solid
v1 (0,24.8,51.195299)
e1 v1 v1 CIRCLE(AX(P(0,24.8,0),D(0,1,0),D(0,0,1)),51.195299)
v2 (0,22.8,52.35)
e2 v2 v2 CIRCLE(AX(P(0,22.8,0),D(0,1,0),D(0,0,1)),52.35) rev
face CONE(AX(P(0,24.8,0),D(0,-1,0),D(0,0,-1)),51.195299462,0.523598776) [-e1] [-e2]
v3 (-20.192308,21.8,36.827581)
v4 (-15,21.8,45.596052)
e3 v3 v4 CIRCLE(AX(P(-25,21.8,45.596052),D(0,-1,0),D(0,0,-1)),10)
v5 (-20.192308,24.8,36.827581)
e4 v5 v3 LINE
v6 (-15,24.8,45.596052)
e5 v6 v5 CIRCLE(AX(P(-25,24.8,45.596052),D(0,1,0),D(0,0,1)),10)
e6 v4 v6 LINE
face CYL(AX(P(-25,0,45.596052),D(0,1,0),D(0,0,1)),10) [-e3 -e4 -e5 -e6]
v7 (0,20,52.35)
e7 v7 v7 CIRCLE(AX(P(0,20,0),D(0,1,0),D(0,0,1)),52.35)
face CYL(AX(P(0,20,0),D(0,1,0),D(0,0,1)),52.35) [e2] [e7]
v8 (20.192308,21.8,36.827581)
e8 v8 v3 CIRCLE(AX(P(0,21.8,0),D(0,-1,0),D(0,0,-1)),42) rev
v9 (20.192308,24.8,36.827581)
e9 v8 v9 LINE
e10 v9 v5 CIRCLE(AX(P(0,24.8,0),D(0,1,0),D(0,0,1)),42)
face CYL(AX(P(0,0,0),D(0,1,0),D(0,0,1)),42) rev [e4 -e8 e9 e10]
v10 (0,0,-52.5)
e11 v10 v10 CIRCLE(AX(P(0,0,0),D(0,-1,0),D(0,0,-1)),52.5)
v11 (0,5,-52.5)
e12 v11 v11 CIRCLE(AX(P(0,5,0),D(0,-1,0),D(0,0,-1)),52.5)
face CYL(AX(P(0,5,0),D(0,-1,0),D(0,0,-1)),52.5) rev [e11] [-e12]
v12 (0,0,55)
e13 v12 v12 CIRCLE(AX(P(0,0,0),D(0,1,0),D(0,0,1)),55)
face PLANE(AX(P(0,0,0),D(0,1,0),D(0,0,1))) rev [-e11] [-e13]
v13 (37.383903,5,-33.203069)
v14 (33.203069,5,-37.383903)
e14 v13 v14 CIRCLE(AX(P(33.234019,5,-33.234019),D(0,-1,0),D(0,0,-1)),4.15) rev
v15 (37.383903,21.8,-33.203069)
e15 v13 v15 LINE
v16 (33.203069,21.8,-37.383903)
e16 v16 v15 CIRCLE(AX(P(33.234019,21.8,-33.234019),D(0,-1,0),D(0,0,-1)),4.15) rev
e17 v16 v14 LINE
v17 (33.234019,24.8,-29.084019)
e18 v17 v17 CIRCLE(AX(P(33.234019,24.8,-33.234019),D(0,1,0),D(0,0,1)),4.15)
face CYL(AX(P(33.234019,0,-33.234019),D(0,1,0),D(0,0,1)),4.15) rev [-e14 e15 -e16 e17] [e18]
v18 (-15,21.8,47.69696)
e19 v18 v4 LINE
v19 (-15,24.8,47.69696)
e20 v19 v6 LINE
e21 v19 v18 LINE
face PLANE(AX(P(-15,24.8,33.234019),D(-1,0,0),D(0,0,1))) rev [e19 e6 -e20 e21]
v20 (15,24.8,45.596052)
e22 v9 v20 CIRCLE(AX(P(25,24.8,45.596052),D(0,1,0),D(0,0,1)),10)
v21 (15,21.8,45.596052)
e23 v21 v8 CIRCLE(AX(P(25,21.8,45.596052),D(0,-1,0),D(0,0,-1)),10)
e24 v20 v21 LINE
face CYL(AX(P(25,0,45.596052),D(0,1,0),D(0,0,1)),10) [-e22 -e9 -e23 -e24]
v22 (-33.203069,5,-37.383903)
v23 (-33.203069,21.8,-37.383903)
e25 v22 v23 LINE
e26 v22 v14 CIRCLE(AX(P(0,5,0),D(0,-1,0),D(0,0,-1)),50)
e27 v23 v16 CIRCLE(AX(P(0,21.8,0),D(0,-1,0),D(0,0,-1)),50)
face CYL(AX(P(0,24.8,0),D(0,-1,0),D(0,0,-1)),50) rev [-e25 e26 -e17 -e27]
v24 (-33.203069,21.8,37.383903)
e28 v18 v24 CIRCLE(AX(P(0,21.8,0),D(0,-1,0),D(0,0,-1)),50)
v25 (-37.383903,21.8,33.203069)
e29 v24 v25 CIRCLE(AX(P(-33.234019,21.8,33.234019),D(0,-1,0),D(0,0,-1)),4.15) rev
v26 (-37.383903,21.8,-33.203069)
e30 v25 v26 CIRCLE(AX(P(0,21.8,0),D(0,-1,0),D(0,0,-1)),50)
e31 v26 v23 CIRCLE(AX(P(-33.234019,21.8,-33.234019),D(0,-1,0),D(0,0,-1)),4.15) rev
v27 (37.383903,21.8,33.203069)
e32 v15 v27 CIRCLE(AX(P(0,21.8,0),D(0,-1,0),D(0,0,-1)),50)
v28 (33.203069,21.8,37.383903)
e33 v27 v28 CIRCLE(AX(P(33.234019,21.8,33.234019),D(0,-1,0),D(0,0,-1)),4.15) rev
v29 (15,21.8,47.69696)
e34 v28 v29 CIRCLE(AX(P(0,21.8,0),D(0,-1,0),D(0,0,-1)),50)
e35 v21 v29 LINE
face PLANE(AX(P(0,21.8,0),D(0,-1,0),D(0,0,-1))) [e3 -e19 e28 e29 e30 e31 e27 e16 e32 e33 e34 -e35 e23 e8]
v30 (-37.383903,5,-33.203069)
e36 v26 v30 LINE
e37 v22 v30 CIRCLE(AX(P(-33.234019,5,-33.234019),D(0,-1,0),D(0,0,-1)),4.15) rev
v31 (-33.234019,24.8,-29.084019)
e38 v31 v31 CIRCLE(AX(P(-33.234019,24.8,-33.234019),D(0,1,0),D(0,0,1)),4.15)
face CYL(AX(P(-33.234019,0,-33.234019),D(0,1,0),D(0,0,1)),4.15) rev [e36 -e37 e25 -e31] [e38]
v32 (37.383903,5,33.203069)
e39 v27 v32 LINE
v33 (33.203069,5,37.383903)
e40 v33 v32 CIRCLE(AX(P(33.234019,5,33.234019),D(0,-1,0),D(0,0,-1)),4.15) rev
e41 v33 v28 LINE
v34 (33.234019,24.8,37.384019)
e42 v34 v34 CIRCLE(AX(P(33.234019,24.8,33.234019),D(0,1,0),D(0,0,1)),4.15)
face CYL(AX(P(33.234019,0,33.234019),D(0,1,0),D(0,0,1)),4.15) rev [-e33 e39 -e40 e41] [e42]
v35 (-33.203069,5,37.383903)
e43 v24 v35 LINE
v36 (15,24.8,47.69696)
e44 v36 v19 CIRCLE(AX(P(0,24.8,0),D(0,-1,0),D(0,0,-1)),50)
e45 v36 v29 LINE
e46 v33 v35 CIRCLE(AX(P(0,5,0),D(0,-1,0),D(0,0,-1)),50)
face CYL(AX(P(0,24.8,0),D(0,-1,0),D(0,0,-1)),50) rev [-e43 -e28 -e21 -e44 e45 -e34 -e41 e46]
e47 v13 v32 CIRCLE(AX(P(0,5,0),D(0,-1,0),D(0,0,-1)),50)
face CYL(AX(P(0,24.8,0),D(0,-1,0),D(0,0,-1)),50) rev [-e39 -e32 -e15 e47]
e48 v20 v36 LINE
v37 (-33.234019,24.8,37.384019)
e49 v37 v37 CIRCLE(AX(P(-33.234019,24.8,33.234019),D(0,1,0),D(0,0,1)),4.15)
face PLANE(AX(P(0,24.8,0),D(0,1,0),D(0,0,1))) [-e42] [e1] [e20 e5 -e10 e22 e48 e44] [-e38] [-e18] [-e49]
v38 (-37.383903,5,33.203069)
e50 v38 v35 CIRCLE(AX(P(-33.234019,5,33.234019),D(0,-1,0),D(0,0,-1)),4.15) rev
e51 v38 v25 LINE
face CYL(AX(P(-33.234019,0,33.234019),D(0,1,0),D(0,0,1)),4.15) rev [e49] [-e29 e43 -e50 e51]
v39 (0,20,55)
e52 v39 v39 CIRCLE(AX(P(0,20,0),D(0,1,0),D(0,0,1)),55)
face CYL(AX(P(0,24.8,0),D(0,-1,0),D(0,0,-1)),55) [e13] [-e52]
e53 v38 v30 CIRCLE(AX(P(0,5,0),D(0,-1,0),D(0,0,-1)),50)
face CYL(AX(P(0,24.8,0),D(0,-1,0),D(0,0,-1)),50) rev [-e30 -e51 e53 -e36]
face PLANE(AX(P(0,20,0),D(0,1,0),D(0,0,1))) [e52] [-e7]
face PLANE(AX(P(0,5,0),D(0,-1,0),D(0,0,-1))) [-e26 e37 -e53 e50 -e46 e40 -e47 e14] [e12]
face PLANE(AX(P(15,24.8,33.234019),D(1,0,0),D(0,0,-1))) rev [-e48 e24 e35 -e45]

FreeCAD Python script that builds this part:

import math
import FreeCAD as App
import Part
import Sketcher
from FreeCAD import Vector


def edges_at(feature, points):
    """Names of the edges that pass closest to the given points."""
    edges = feature.Shape.Edges
    near = lambda p: min(range(len(edges)), key=lambda i: edges[i].distToShape(Part.Vertex(*p))[0])
    return sorted({f"Edge{near(p) + 1}" for p in points})


def faces_at(feature, points):
    """Names of the faces that lie closest to the given points."""
    faces = feature.Shape.Faces
    near = lambda p: min(range(len(faces)), key=lambda i: faces[i].distToShape(Part.Vertex(*p))[0])
    return sorted({f"Face{near(p) + 1}" for p in points})

doc = App.newDocument("Part")
body = doc.addObject("PartDesign::Body", "Body")

# Sketch on XZ plane
sketch1 = doc.addObject("Sketcher::SketchObject", "Sketch")
body.addObject(sketch1)
sketch1.AttachmentSupport = (doc.XZ_Plane, [""])
sketch1.MapMode = "FlatFace"
sketch1.addGeometry(Part.Circle(Vector(0, 0, 0), Vector(0, 0, 1), 55), False)
sketch1.addConstraint(Sketcher.Constraint("Coincident", 0, 3, -1, 1))
sketch1.addConstraint(Sketcher.Constraint("Diameter", 0, 110.0))
pad1 = doc.addObject("PartDesign::Pad", "Pad")
body.addObject(pad1)
pad1.Profile = sketch1
pad1.Length = 24.8
pad1.Reversed = True
doc.recompute()

thickness = doc.addObject("PartDesign::Thickness", "Thickness")
body.addObject(thickness)
thickness.Base = (pad1, faces_at(pad1, [(0, 0, 0)]))
thickness.Value = 5
thickness.Reversed = True
thickness.Join = "Intersection"

# Sketch on XZ plane
sketch2 = doc.addObject("Sketcher::SketchObject", "Sketch001")
body.addObject(sketch2)
sketch2.AttachmentSupport = (doc.XZ_Plane, [""])
sketch2.MapMode = "FlatFace"
sketch2.AttachmentOffset = App.Placement(Vector(0, 0, -19.8), App.Rotation())
sketch2.addGeometry(Part.Circle(Vector(0, 0, 0), Vector(0, 0, 1), 35), False)
sketch2.addConstraint(Sketcher.Constraint("Coincident", 0, 3, -1, 1))
sketch2.addConstraint(Sketcher.Constraint("Diameter", 0, 70.0))
pocket1 = doc.addObject("PartDesign::Pocket", "Pocket")
body.addObject(pocket1)
pocket1.Profile = sketch2
pocket1.Type = "ThroughAll"

# Sketch on XZ plane
sketch3 = doc.addObject("Sketcher::SketchObject", "Sketch002")
body.addObject(sketch3)
sketch3.AttachmentSupport = (doc.XZ_Plane, [""])
sketch3.MapMode = "FlatFace"
sketch3.AttachmentOffset = App.Placement(Vector(0, 0, -24.8), App.Rotation())
sketch3.addGeometry(Part.Circle(Vector(0, 0, 0), Vector(0, 0, 1), 42), False)
sketch3.addConstraint(Sketcher.Constraint("Coincident", 0, 3, -1, 1))
sketch3.addConstraint(Sketcher.Constraint("Diameter", 0, 84.0))
pocket2 = doc.addObject("PartDesign::Pocket", "Pocket001")
body.addObject(pocket2)
pocket2.Profile = sketch3
pocket2.Type = "ThroughAll"
pocket2.Reversed = True

# Sketch on XZ plane
sketch4 = doc.addObject("Sketcher::SketchObject", "Sketch003")
body.addObject(sketch4)
sketch4.AttachmentSupport = (doc.XZ_Plane, [""])
sketch4.MapMode = "FlatFace"
sketch4.AttachmentOffset = App.Placement(Vector(0, 0, -24.8), App.Rotation())
sketch4.addGeometry(Part.Circle(Vector(-33.2, 33.2, 0), Vector(0, 0, 1), 4.2), False)
sketch4.addGeometry(Part.Circle(Vector(-33.2, -33.2, 0), Vector(0, 0, 1), 4.2), False)
sketch4.addGeometry(Part.Circle(Vector(33.2, -33.2, 0), Vector(0, 0, 1), 4.2), False)
sketch4.addGeometry(Part.Circle(Vector(33.2, 33.2, 0), Vector(0, 0, 1), 4.2), False)
sketch4.addConstraint(Sketcher.Constraint("Equal", 0, 1))
sketch4.addConstraint(Sketcher.Constraint("Equal", 1, 2))
sketch4.addConstraint(Sketcher.Constraint("Equal", 2, 3))
sketch4.addConstraint(Sketcher.Constraint("Symmetric", 0, 3, 2, 3, -1, 1))
sketch4.addConstraint(Sketcher.Constraint("Symmetric", 1, 3, 3, 3, -1, 1))
sketch4.addConstraint(Sketcher.Constraint("Symmetric", 1, 3, 2, 3, -2))
sketch4.addConstraint(Sketcher.Constraint("Diameter", 0, 8.3))
sketch4.addConstraint(Sketcher.Constraint("DistanceX", 0, 3, -1, 1, 33.234019))
sketch4.addConstraint(Sketcher.Constraint("DistanceY", -1, 1, 0, 3, 33.234019))
pocket3 = doc.addObject("PartDesign::Pocket", "Pocket002")
body.addObject(pocket3)
pocket3.Profile = sketch4
pocket3.Type = "ThroughAll"
pocket3.Reversed = True

# Sketch on XZ plane
sketch5 = doc.addObject("Sketcher::SketchObject", "Sketch004")
body.addObject(sketch5)
sketch5.AttachmentSupport = (doc.XZ_Plane, [""])
sketch5.MapMode = "FlatFace"
sketch5.AttachmentOffset = App.Placement(Vector(0, 0, -19.8), App.Rotation())
sketch5.addGeometry(Part.Circle(Vector(0, 0, 0), Vector(0, 0, 1), 50), False)
sketch5.addConstraint(Sketcher.Constraint("Coincident", 0, 3, -1, 1))
sketch5.addConstraint(Sketcher.Constraint("Diameter", 0, 100.0))
pocket4 = doc.addObject("PartDesign::Pocket", "Pocket003")
body.addObject(pocket4)
pocket4.Profile = sketch5
pocket4.Length = 2

# Sketch on XZ plane
sketch6 = doc.addObject("Sketcher::SketchObject", "Sketch005")
body.addObject(sketch6)
sketch6.AttachmentSupport = (doc.XZ_Plane, [""])
sketch6.MapMode = "FlatFace"
sketch6.AttachmentOffset = App.Placement(Vector(0, 0, -21.8), App.Rotation())
sketch6.addGeometry(Part.LineSegment(Vector(15, 33, 0), Vector(15, 48, 0)), False)
sketch6.addGeometry(Part.ArcOfCircle(Part.Circle(Vector(0, 0, 0), Vector(0, 0, 1), 50), math.radians(73), math.radians(107)), False)
sketch6.addGeometry(Part.LineSegment(Vector(-15, 48, 0), Vector(-15, 33, 0)), False)
sketch6.addGeometry(Part.LineSegment(Vector(-15, 33, 0), Vector(15, 33, 0)), False)
sketch6.addConstraint(Sketcher.Constraint("Coincident", 0, 2, 1, 1))
sketch6.addConstraint(Sketcher.Constraint("Coincident", 1, 2, 2, 1))
sketch6.addConstraint(Sketcher.Constraint("Coincident", 2, 2, 3, 1))
sketch6.addConstraint(Sketcher.Constraint("Coincident", 3, 2, 0, 1))
sketch6.addConstraint(Sketcher.Constraint("Vertical", 0))
sketch6.addConstraint(Sketcher.Constraint("Vertical", 2))
sketch6.addConstraint(Sketcher.Constraint("Horizontal", 3))
sketch6.addConstraint(Sketcher.Constraint("Coincident", 1, 3, -1, 1))
sketch6.addConstraint(Sketcher.Constraint("Horizontal", 0, 2, 1, 2))
sketch6.addConstraint(Sketcher.Constraint("Radius", 1, 50.0))
sketch6.addConstraint(Sketcher.Constraint("DistanceX", 3, 1, 3, 2, 30.0))
sketch6.addConstraint(Sketcher.Constraint("DistanceY", 0, 1, 0, 2, 14.462941))
pocket5 = doc.addObject("PartDesign::Pocket", "Pocket004")
body.addObject(pocket5)
pocket5.Profile = sketch6
pocket5.Type = "ThroughAll"
doc.recompute()

fillet = doc.addObject("PartDesign::Fillet", "Fillet")
body.addObject(fillet)
fillet.Base = (pocket5, edges_at(pocket5, [(-15, 23.3, 39.23), (15, 23.3, 39.23)]))
fillet.Radius = 10

# Sketch on XZ plane
sketch7 = doc.addObject("Sketcher::SketchObject", "Sketch006")
body.addObject(sketch7)
sketch7.AttachmentSupport = (doc.XZ_Plane, [""])
sketch7.MapMode = "FlatFace"
sketch7.AttachmentOffset = App.Placement(Vector(0, 0, -24.8), App.Rotation())
sketch7.addGeometry(Part.LineSegment(Vector(-72, -72, 0), Vector(-72, 72, 0)), False)
sketch7.addGeometry(Part.LineSegment(Vector(-72, 72, 0), Vector(72, 72, 0)), False)
sketch7.addGeometry(Part.LineSegment(Vector(72, 72, 0), Vector(72, -72, 0)), False)
sketch7.addGeometry(Part.LineSegment(Vector(72, -72, 0), Vector(-72, -72, 0)), False)
sketch7.addGeometry(Part.Circle(Vector(0, 0, 0), Vector(0, 0, 1), 52), False)
sketch7.addConstraint(Sketcher.Constraint("Coincident", 0, 2, 1, 1))
sketch7.addConstraint(Sketcher.Constraint("Coincident", 1, 2, 2, 1))
sketch7.addConstraint(Sketcher.Constraint("Coincident", 2, 2, 3, 1))
sketch7.addConstraint(Sketcher.Constraint("Coincident", 3, 2, 0, 1))
sketch7.addConstraint(Sketcher.Constraint("Vertical", 0))
sketch7.addConstraint(Sketcher.Constraint("Horizontal", 1))
sketch7.addConstraint(Sketcher.Constraint("Vertical", 2))
sketch7.addConstraint(Sketcher.Constraint("Horizontal", 3))
sketch7.addConstraint(Sketcher.Constraint("Coincident", 4, 3, -1, 1))
sketch7.addConstraint(Sketcher.Constraint("Symmetric", 0, 2, 2, 2, -1, 1))
sketch7.addConstraint(Sketcher.Constraint("Equal", 3, 0))
sketch7.addConstraint(Sketcher.Constraint("Diameter", 4, 104.7))
sketch7.addConstraint(Sketcher.Constraint("DistanceX", 1, 1, 1, 2, 143.506))
pocket6 = doc.addObject("PartDesign::Pocket", "Pocket005")
body.addObject(pocket6)
pocket6.Profile = sketch7
pocket6.Length = 4.8
pocket6.Reversed = True
doc.recompute()

chamfer = doc.addObject("PartDesign::Chamfer", "Chamfer")
body.addObject(chamfer)
chamfer.Base = (pocket6, edges_at(pocket6, [(0, 24.8, -52.35)]))
chamfer.ChamferType = "Two distances"
chamfer.Size = 2
chamfer.Size2 = 1.154701
chamfer.FlipDirection = True

# Sketch on XZ plane
sketch8 = doc.addObject("Sketcher::SketchObject", "Sketch007")
body.addObject(sketch8)
sketch8.AttachmentSupport = (doc.XZ_Plane, [""])
sketch8.MapMode = "FlatFace"
sketch8.addGeometry(Part.Circle(Vector(0, 0, 0), Vector(0, 0, 1), 52), False)
sketch8.addConstraint(Sketcher.Constraint("Coincident", 0, 3, -1, 1))
sketch8.addConstraint(Sketcher.Constraint("Diameter", 0, 105.0))
pocket7 = doc.addObject("PartDesign::Pocket", "Pocket006")
body.addObject(pocket7)
pocket7.Profile = sketch8
pocket7.Length = 5

doc.recompute()
